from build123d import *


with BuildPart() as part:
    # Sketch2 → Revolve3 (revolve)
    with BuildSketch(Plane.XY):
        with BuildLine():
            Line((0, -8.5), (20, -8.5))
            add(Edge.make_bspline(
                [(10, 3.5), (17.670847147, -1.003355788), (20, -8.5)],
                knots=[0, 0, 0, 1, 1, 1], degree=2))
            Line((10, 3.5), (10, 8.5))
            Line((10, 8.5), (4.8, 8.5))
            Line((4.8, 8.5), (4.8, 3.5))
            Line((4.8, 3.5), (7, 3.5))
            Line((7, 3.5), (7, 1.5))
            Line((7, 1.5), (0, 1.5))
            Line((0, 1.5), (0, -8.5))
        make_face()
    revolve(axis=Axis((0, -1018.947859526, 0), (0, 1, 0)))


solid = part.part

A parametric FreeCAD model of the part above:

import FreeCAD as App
import Part
import Sketcher

V = App.Vector
Q = App.Units.Quantity

doc = App.newDocument("Part")
body = doc.addObject("PartDesign::Body", "Body")

sketch1 = body.newObject("Sketcher::SketchObject", "Sketch")
sketch1.AttachmentSupport = (doc.getObject("XY_Plane"), [""])
sketch1.MapMode = "FlatFace"
sketch1.addGeometry(Part.LineSegment(V(0, -8.5, 0), V(20, -8.5, 0)), False)
sketch1.addGeometry(Part.BSplineCurve([V(10, 3.5, 0), V(17.670847, -1.003356, 0), V(20, -8.5, 0)], [3, 3], [0, 1], False, 2, [1, 1, 1], False), False)
sketch1.addGeometry(Part.LineSegment(V(10, 3.5, 0), V(10, 8.5, 0)), False)
sketch1.addGeometry(Part.LineSegment(V(10, 8.5, 0), V(4.8, 8.5, 0)), False)
sketch1.addGeometry(Part.LineSegment(V(4.8, 8.5, 0), V(4.8, 3.5, 0)), False)
sketch1.addGeometry(Part.LineSegment(V(4.8, 3.5, 0), V(7, 3.5, 0)), False)
sketch1.addGeometry(Part.LineSegment(V(7, 3.5, 0), V(7, 1.5, 0)), False)
sketch1.addGeometry(Part.LineSegment(V(7, 1.5, 0), V(0, 1.5, 0)), False)
sketch1.addGeometry(Part.LineSegment(V(0, 1.5, 0), V(0, -8.5, 0)), False)
sketch1.addConstraint(Sketcher.Constraint("Block", 1))
sketch1.addConstraint(Sketcher.Constraint("Coincident", 0, 2, 1, 2))
sketch1.addConstraint(Sketcher.Constraint("Coincident", 1, 1, 2, 1))
sketch1.addConstraint(Sketcher.Constraint("Coincident", 2, 2, 3, 1))
sketch1.addConstraint(Sketcher.Constraint("Coincident", 3, 2, 4, 1))
sketch1.addConstraint(Sketcher.Constraint("Coincident", 4, 2, 5, 1))
sketch1.addConstraint(Sketcher.Constraint("Coincident", 5, 2, 6, 1))
sketch1.addConstraint(Sketcher.Constraint("Coincident", 6, 2, 7, 1))
sketch1.addConstraint(Sketcher.Constraint("Coincident", 7, 2, 8, 1))
sketch1.addConstraint(Sketcher.Constraint("Coincident", 8, 2, 0, 1))
sketch1.addConstraint(Sketcher.Constraint("Horizontal", 0))
sketch1.addConstraint(Sketcher.Constraint("Vertical", 2))
sketch1.addConstraint(Sketcher.Constraint("Horizontal", 3))
sketch1.addConstraint(Sketcher.Constraint("Vertical", 4))
sketch1.addConstraint(Sketcher.Constraint("Horizontal", 5))
sketch1.addConstraint(Sketcher.Constraint("Vertical", 6))
sketch1.addConstraint(Sketcher.Constraint("Horizontal", 7))
sketch1.addConstraint(Sketcher.Constraint("Vertical", 8))
sketch1.addConstraint(Sketcher.Constraint("PointOnObject", 7, 2, -2))
sketch1.addConstraint(Sketcher.Constraint("Equal", 2, 4))
sketch1.addConstraint(Sketcher.Constraint("DistanceX", 7, 2, 7, 1, Q("7 mm")))
sketch1.addConstraint(Sketcher.Constraint("DistanceY", 2, 1, 2, 2, Q("5 mm")))
sketch1.addConstraint(Sketcher.Constraint("DistanceY", 6, 2, 6, 1, Q("2 mm")))
sketch1.addConstraint(Sketcher.Constraint("DistanceX", 3, 2, 3, 1, Q("5.2 mm")))
revolution = body.newObject("PartDesign::Revolution", "Revolution")
revolution.Profile = sketch1
revolution.ReferenceAxis = (sketch1, ["V_Axis"])
revolution.Angle = 360

doc.recompute()
